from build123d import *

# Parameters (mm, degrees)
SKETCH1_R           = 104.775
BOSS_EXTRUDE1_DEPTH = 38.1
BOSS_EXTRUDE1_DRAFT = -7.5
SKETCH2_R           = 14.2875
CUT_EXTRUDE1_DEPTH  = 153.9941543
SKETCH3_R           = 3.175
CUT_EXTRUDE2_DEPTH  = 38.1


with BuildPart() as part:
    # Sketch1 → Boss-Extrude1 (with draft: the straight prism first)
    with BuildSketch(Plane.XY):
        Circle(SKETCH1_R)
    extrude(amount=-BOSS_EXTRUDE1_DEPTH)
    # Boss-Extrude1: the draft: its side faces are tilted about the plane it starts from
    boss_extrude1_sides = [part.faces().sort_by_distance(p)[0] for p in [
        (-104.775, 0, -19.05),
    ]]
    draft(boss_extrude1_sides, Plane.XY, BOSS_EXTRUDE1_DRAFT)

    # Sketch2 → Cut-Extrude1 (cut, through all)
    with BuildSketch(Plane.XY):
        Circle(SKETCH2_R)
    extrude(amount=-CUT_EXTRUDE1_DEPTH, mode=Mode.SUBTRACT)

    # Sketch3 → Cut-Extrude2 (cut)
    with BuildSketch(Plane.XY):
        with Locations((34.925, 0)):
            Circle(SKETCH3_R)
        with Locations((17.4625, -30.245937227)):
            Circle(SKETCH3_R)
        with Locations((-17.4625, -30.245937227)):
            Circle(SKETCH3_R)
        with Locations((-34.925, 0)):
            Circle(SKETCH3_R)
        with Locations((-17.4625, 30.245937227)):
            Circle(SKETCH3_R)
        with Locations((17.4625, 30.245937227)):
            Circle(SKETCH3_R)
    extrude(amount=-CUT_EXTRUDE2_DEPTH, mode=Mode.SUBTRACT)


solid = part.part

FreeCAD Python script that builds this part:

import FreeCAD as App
import Part
import Sketcher
from FreeCAD import Vector
Q = App.Units.Quantity


def faces_at(feature, points):
    """Names of the faces that lie closest to the given points."""
    faces = feature.Shape.Faces
    near = lambda p: min(range(len(faces)), key=lambda i: faces[i].distToShape(Part.Vertex(*p))[0])
    return sorted({f"Face{near(p) + 1}" for p in points})

doc = App.newDocument("Part")
params = doc.addObject("Spreadsheet::Sheet", "Params")
for row, (alias, value) in enumerate([
    ("sketch1_diameter", "8.25 in"),
    ("pad1_length", "1.5 in"),
    ("draft_angle", "7.5 deg"),
    ("sketch2_diameter", "1.125 in"),
    ("sketch3_diameter", "0.25 in"),
    ("pocket2_length", "1.5 in"),
], start=1):
    params.set(f"A{row}", alias)
    params.set(f"B{row}", "=" + value)
    params.setAlias(f"B{row}", alias)

body = doc.addObject("PartDesign::Body", "Body")

sketch1 = body.newObject("Sketcher::SketchObject", "Sketch")
sketch1.AttachmentSupport = (doc.getObject("XY_Plane"), [""])
sketch1.MapMode = "FlatFace"
sketch1.addGeometry(Part.Circle(Vector(0, 0, 0), Vector(0, 0, 1), 105), False)
sketch1.addConstraint([
    Sketcher.Constraint("Coincident", 0, 3, -1, 1),
    Sketcher.Constraint("Diameter", 0, Q("8.25 in")),
])
sketch1.setExpression("Constraints[1]", "Params.sketch1_diameter")
pad1 = body.newObject("PartDesign::Pad", "Pad")
pad1.Profile = sketch1
pad1.setExpression("Length", "Params.pad1_length")
pad1.Reversed = True
doc.recompute()

draft = body.newObject("PartDesign::Draft", "Draft")
draft.Base = (pad1, faces_at(pad1, [(-104.775, 0, -19.05)]))
draft.NeutralPlane = (doc.getObject("XY_Plane"), [""])
draft.setExpression("Angle", "Params.draft_angle")
draft.Reversed = True

sketch2 = body.newObject("Sketcher::SketchObject", "Sketch001")
sketch2.AttachmentSupport = (doc.getObject("XY_Plane"), [""])
sketch2.MapMode = "FlatFace"
sketch2.addGeometry(Part.Circle(Vector(0, 0, 0), Vector(0, 0, 1), 14), False)
sketch2.addConstraint([
    Sketcher.Constraint("Coincident", 0, 3, -1, 1),
    Sketcher.Constraint("Diameter", 0, Q("1.125 in")),
])
sketch2.setExpression("Constraints[1]", "Params.sketch2_diameter")
pocket1 = body.newObject("PartDesign::Pocket", "Pocket")
pocket1.Profile = sketch2
pocket1.Type = "ThroughAll"

sketch3 = body.newObject("Sketcher::SketchObject", "Sketch002")
sketch3.AttachmentSupport = (doc.getObject("XY_Plane"), [""])
sketch3.MapMode = "FlatFace"
sketch3.addGeometry([
    Part.Circle(Vector(34.9, 0, 0), Vector(0, 0, 1), 3.2),
    Part.Circle(Vector(17.5, -30.2, 0), Vector(0, 0, 1), 3.2),
    Part.Circle(Vector(-17.5, -30.2, 0), Vector(0, 0, 1), 3.2),
    Part.Circle(Vector(-34.9, 0, 0), Vector(0, 0, 1), 3.2),
    Part.Circle(Vector(-17.5, 30.2, 0), Vector(0, 0, 1), 3.2),
    Part.Circle(Vector(17.5, 30.2, 0), Vector(0, 0, 1), 3.2),
], False)
sketch3.addConstraint([
    Sketcher.Constraint("Equal", 0, 1),
    Sketcher.Constraint("Equal", 1, 2),
    Sketcher.Constraint("Equal", 2, 3),
    Sketcher.Constraint("Equal", 3, 4),
    Sketcher.Constraint("Equal", 4, 5),
    Sketcher.Constraint("Symmetric", 0, 3, 3, 3, -1, 1),
    Sketcher.Constraint("Symmetric", 1, 3, 4, 3, -1, 1),
    Sketcher.Constraint("Symmetric", 2, 3, 5, 3, -1, 1),
    Sketcher.Constraint("Symmetric", 1, 3, 2, 3, -2),
    Sketcher.Constraint("PointOnObject", 0, 3, -1),
    Sketcher.Constraint("Diameter", 0, Q("0.25 in")),
    Sketcher.Constraint("DistanceX", 3, 3, 0, 3, Q("2.75 in")),
    Sketcher.Constraint("DistanceX", -1, 1, 1, 3, Q("0.6875 in")),
    Sketcher.Constraint("DistanceY", 1, 3, -1, 1, 30.245937),
])
sketch3.setExpression("Constraints[10]", "Params.sketch3_diameter")
pocket2 = body.newObject("PartDesign::Pocket", "Pocket001")
pocket2.Profile = sketch3
pocket2.setExpression("Length", "Params.pocket2_length")

doc.recompute()
